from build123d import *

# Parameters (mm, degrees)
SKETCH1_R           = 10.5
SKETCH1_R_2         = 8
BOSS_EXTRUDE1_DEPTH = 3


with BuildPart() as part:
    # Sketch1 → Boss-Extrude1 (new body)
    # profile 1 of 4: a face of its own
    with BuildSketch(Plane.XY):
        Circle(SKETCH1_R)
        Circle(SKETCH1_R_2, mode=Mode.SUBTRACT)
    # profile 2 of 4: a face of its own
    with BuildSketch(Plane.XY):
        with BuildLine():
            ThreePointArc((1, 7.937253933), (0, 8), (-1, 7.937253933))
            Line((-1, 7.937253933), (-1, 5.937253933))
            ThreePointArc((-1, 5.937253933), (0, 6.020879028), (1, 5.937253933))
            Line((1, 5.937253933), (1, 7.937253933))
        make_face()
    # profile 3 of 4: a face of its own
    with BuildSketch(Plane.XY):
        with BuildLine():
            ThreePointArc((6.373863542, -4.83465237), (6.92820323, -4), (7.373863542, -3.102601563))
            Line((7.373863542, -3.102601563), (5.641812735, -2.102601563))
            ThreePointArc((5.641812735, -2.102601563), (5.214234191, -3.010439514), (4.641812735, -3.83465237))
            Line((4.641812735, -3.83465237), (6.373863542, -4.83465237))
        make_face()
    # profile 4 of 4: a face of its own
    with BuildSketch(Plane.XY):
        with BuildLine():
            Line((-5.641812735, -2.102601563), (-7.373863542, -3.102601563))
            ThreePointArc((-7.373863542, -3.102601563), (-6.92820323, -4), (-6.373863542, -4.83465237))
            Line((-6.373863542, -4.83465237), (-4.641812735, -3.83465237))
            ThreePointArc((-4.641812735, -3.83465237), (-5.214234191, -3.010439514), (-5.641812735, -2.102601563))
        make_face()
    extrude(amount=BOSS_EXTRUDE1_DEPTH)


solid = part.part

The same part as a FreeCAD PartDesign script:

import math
import FreeCAD as App
import Part
import Sketcher
from FreeCAD import Vector
Q = App.Units.Quantity

doc = App.newDocument("Part")
body = doc.addObject("PartDesign::Body", "Body")

# Sketch on XY plane
sketch1 = doc.addObject("Sketcher::SketchObject", "Sketch")
body.addObject(sketch1)
sketch1.AttachmentSupport = (doc.XY_Plane, [""])
sketch1.MapMode = "FlatFace"
sketch1.addGeometry([
    Part.Circle(Vector(0, 0, 0), Vector(0, 0, 1), 10.5),  # 0
    Part.ArcOfCircle(Part.Circle(Vector(0, 0, 0), Vector(0, 0, 1), 8), math.radians(-23), math.radians(83)),  # 1
    Part.LineSegment(Vector(7.4, -3.1, 0), Vector(5.6, -2.1, 0)),  # 2
    Part.ArcOfCircle(Part.Circle(Vector(0, 0, 0), Vector(0, 0, 1), 6), math.radians(-39.56), math.radians(-20.44)),  # 3
    Part.LineSegment(Vector(4.6, -3.8, 0), Vector(6.4, -4.8, 0)),  # 4
    Part.ArcOfCircle(Part.Circle(Vector(0, 0, 0), Vector(0, 0, 1), 8), math.radians(-143), math.radians(-37)),  # 5
    Part.LineSegment(Vector(-6.4, -4.8, 0), Vector(-4.6, -3.8, 0)),  # 6
    Part.ArcOfCircle(Part.Circle(Vector(0, 0, 0), Vector(0, 0, 1), 6), math.radians(-159.56), math.radians(-140.44)),  # 7
    Part.LineSegment(Vector(-5.6, -2.1, 0), Vector(-7.4, -3.1, 0)),  # 8
    Part.ArcOfCircle(Part.Circle(Vector(0, 0, 0), Vector(0, 0, 1), 8), math.radians(97), math.radians(203)),  # 9
    Part.LineSegment(Vector(-1, 7.9, 0), Vector(-1, 5.9, 0)),  # 10
    Part.ArcOfCircle(Part.Circle(Vector(0, 0, 0), Vector(0, 0, 1), 6), math.radians(80.44), math.radians(99.56)),  # 11
    Part.LineSegment(Vector(1, 5.9, 0), Vector(1, 7.9, 0)),  # 12
], False)
sketch1.addConstraint([
    Sketcher.Constraint("Coincident", 1, 1, 2, 1),
    Sketcher.Constraint("Coincident", 2, 2, 3, 2),
    Sketcher.Constraint("Coincident", 3, 1, 4, 1),
    Sketcher.Constraint("Coincident", 4, 2, 5, 2),
    Sketcher.Constraint("Coincident", 5, 1, 6, 1),
    Sketcher.Constraint("Coincident", 6, 2, 7, 2),
    Sketcher.Constraint("Coincident", 7, 1, 8, 1),
    Sketcher.Constraint("Coincident", 8, 2, 9, 2),
    Sketcher.Constraint("Coincident", 9, 1, 10, 1),
    Sketcher.Constraint("Coincident", 10, 2, 11, 2),
    Sketcher.Constraint("Coincident", 11, 1, 12, 1),
    Sketcher.Constraint("Coincident", 12, 2, 1, 2),
    Sketcher.Constraint("Vertical", 10),
    Sketcher.Constraint("Vertical", 12),
    Sketcher.Constraint("Coincident", 0, 3, -1, 1),
    Sketcher.Constraint("Coincident", 1, 3, -1, 1),
    Sketcher.Constraint("Coincident", 3, 3, -1, 1),
    Sketcher.Constraint("Coincident", 5, 3, -1, 1),
    Sketcher.Constraint("Coincident", 7, 3, -1, 1),
    Sketcher.Constraint("Coincident", 9, 3, -1, 1),
    Sketcher.Constraint("Coincident", 11, 3, -1, 1),
    Sketcher.Constraint("Equal", 1, 5),
    Sketcher.Constraint("Equal", 3, 7),
    Sketcher.Constraint("Equal", 5, 9),
    Sketcher.Constraint("Equal", 7, 11),
    Sketcher.Constraint("Parallel", 2, 4),
    Sketcher.Constraint("Parallel", 6, 8),
    Sketcher.Constraint("Horizontal", 4, 2, 5, 1),
    Sketcher.Constraint("Horizontal", 3, 1, 6, 2),
    Sketcher.Constraint("Horizontal", 2, 2, 7, 1),
    Sketcher.Constraint("Horizontal", 10, 2, 11, 1),
    Sketcher.Constraint("Equal", 2, 4),
    Sketcher.Constraint("Diameter", 0, 21.0),
    Sketcher.Constraint("Radius", 1, 8.0),
    Sketcher.Constraint("DistanceY", 10, 2, 10, 1, 2.0),
    Sketcher.Constraint("Angle", 2, Q("150 deg")),
    Sketcher.Constraint("Distance", 2, 2.0),
    Sketcher.Constraint("DistanceX", 9, 1, -1, 1, 1.0),
])
pad1 = doc.addObject("PartDesign::Pad", "Pad")
body.addObject(pad1)
pad1.Profile = sketch1
pad1.Length = 3

doc.recompute()
